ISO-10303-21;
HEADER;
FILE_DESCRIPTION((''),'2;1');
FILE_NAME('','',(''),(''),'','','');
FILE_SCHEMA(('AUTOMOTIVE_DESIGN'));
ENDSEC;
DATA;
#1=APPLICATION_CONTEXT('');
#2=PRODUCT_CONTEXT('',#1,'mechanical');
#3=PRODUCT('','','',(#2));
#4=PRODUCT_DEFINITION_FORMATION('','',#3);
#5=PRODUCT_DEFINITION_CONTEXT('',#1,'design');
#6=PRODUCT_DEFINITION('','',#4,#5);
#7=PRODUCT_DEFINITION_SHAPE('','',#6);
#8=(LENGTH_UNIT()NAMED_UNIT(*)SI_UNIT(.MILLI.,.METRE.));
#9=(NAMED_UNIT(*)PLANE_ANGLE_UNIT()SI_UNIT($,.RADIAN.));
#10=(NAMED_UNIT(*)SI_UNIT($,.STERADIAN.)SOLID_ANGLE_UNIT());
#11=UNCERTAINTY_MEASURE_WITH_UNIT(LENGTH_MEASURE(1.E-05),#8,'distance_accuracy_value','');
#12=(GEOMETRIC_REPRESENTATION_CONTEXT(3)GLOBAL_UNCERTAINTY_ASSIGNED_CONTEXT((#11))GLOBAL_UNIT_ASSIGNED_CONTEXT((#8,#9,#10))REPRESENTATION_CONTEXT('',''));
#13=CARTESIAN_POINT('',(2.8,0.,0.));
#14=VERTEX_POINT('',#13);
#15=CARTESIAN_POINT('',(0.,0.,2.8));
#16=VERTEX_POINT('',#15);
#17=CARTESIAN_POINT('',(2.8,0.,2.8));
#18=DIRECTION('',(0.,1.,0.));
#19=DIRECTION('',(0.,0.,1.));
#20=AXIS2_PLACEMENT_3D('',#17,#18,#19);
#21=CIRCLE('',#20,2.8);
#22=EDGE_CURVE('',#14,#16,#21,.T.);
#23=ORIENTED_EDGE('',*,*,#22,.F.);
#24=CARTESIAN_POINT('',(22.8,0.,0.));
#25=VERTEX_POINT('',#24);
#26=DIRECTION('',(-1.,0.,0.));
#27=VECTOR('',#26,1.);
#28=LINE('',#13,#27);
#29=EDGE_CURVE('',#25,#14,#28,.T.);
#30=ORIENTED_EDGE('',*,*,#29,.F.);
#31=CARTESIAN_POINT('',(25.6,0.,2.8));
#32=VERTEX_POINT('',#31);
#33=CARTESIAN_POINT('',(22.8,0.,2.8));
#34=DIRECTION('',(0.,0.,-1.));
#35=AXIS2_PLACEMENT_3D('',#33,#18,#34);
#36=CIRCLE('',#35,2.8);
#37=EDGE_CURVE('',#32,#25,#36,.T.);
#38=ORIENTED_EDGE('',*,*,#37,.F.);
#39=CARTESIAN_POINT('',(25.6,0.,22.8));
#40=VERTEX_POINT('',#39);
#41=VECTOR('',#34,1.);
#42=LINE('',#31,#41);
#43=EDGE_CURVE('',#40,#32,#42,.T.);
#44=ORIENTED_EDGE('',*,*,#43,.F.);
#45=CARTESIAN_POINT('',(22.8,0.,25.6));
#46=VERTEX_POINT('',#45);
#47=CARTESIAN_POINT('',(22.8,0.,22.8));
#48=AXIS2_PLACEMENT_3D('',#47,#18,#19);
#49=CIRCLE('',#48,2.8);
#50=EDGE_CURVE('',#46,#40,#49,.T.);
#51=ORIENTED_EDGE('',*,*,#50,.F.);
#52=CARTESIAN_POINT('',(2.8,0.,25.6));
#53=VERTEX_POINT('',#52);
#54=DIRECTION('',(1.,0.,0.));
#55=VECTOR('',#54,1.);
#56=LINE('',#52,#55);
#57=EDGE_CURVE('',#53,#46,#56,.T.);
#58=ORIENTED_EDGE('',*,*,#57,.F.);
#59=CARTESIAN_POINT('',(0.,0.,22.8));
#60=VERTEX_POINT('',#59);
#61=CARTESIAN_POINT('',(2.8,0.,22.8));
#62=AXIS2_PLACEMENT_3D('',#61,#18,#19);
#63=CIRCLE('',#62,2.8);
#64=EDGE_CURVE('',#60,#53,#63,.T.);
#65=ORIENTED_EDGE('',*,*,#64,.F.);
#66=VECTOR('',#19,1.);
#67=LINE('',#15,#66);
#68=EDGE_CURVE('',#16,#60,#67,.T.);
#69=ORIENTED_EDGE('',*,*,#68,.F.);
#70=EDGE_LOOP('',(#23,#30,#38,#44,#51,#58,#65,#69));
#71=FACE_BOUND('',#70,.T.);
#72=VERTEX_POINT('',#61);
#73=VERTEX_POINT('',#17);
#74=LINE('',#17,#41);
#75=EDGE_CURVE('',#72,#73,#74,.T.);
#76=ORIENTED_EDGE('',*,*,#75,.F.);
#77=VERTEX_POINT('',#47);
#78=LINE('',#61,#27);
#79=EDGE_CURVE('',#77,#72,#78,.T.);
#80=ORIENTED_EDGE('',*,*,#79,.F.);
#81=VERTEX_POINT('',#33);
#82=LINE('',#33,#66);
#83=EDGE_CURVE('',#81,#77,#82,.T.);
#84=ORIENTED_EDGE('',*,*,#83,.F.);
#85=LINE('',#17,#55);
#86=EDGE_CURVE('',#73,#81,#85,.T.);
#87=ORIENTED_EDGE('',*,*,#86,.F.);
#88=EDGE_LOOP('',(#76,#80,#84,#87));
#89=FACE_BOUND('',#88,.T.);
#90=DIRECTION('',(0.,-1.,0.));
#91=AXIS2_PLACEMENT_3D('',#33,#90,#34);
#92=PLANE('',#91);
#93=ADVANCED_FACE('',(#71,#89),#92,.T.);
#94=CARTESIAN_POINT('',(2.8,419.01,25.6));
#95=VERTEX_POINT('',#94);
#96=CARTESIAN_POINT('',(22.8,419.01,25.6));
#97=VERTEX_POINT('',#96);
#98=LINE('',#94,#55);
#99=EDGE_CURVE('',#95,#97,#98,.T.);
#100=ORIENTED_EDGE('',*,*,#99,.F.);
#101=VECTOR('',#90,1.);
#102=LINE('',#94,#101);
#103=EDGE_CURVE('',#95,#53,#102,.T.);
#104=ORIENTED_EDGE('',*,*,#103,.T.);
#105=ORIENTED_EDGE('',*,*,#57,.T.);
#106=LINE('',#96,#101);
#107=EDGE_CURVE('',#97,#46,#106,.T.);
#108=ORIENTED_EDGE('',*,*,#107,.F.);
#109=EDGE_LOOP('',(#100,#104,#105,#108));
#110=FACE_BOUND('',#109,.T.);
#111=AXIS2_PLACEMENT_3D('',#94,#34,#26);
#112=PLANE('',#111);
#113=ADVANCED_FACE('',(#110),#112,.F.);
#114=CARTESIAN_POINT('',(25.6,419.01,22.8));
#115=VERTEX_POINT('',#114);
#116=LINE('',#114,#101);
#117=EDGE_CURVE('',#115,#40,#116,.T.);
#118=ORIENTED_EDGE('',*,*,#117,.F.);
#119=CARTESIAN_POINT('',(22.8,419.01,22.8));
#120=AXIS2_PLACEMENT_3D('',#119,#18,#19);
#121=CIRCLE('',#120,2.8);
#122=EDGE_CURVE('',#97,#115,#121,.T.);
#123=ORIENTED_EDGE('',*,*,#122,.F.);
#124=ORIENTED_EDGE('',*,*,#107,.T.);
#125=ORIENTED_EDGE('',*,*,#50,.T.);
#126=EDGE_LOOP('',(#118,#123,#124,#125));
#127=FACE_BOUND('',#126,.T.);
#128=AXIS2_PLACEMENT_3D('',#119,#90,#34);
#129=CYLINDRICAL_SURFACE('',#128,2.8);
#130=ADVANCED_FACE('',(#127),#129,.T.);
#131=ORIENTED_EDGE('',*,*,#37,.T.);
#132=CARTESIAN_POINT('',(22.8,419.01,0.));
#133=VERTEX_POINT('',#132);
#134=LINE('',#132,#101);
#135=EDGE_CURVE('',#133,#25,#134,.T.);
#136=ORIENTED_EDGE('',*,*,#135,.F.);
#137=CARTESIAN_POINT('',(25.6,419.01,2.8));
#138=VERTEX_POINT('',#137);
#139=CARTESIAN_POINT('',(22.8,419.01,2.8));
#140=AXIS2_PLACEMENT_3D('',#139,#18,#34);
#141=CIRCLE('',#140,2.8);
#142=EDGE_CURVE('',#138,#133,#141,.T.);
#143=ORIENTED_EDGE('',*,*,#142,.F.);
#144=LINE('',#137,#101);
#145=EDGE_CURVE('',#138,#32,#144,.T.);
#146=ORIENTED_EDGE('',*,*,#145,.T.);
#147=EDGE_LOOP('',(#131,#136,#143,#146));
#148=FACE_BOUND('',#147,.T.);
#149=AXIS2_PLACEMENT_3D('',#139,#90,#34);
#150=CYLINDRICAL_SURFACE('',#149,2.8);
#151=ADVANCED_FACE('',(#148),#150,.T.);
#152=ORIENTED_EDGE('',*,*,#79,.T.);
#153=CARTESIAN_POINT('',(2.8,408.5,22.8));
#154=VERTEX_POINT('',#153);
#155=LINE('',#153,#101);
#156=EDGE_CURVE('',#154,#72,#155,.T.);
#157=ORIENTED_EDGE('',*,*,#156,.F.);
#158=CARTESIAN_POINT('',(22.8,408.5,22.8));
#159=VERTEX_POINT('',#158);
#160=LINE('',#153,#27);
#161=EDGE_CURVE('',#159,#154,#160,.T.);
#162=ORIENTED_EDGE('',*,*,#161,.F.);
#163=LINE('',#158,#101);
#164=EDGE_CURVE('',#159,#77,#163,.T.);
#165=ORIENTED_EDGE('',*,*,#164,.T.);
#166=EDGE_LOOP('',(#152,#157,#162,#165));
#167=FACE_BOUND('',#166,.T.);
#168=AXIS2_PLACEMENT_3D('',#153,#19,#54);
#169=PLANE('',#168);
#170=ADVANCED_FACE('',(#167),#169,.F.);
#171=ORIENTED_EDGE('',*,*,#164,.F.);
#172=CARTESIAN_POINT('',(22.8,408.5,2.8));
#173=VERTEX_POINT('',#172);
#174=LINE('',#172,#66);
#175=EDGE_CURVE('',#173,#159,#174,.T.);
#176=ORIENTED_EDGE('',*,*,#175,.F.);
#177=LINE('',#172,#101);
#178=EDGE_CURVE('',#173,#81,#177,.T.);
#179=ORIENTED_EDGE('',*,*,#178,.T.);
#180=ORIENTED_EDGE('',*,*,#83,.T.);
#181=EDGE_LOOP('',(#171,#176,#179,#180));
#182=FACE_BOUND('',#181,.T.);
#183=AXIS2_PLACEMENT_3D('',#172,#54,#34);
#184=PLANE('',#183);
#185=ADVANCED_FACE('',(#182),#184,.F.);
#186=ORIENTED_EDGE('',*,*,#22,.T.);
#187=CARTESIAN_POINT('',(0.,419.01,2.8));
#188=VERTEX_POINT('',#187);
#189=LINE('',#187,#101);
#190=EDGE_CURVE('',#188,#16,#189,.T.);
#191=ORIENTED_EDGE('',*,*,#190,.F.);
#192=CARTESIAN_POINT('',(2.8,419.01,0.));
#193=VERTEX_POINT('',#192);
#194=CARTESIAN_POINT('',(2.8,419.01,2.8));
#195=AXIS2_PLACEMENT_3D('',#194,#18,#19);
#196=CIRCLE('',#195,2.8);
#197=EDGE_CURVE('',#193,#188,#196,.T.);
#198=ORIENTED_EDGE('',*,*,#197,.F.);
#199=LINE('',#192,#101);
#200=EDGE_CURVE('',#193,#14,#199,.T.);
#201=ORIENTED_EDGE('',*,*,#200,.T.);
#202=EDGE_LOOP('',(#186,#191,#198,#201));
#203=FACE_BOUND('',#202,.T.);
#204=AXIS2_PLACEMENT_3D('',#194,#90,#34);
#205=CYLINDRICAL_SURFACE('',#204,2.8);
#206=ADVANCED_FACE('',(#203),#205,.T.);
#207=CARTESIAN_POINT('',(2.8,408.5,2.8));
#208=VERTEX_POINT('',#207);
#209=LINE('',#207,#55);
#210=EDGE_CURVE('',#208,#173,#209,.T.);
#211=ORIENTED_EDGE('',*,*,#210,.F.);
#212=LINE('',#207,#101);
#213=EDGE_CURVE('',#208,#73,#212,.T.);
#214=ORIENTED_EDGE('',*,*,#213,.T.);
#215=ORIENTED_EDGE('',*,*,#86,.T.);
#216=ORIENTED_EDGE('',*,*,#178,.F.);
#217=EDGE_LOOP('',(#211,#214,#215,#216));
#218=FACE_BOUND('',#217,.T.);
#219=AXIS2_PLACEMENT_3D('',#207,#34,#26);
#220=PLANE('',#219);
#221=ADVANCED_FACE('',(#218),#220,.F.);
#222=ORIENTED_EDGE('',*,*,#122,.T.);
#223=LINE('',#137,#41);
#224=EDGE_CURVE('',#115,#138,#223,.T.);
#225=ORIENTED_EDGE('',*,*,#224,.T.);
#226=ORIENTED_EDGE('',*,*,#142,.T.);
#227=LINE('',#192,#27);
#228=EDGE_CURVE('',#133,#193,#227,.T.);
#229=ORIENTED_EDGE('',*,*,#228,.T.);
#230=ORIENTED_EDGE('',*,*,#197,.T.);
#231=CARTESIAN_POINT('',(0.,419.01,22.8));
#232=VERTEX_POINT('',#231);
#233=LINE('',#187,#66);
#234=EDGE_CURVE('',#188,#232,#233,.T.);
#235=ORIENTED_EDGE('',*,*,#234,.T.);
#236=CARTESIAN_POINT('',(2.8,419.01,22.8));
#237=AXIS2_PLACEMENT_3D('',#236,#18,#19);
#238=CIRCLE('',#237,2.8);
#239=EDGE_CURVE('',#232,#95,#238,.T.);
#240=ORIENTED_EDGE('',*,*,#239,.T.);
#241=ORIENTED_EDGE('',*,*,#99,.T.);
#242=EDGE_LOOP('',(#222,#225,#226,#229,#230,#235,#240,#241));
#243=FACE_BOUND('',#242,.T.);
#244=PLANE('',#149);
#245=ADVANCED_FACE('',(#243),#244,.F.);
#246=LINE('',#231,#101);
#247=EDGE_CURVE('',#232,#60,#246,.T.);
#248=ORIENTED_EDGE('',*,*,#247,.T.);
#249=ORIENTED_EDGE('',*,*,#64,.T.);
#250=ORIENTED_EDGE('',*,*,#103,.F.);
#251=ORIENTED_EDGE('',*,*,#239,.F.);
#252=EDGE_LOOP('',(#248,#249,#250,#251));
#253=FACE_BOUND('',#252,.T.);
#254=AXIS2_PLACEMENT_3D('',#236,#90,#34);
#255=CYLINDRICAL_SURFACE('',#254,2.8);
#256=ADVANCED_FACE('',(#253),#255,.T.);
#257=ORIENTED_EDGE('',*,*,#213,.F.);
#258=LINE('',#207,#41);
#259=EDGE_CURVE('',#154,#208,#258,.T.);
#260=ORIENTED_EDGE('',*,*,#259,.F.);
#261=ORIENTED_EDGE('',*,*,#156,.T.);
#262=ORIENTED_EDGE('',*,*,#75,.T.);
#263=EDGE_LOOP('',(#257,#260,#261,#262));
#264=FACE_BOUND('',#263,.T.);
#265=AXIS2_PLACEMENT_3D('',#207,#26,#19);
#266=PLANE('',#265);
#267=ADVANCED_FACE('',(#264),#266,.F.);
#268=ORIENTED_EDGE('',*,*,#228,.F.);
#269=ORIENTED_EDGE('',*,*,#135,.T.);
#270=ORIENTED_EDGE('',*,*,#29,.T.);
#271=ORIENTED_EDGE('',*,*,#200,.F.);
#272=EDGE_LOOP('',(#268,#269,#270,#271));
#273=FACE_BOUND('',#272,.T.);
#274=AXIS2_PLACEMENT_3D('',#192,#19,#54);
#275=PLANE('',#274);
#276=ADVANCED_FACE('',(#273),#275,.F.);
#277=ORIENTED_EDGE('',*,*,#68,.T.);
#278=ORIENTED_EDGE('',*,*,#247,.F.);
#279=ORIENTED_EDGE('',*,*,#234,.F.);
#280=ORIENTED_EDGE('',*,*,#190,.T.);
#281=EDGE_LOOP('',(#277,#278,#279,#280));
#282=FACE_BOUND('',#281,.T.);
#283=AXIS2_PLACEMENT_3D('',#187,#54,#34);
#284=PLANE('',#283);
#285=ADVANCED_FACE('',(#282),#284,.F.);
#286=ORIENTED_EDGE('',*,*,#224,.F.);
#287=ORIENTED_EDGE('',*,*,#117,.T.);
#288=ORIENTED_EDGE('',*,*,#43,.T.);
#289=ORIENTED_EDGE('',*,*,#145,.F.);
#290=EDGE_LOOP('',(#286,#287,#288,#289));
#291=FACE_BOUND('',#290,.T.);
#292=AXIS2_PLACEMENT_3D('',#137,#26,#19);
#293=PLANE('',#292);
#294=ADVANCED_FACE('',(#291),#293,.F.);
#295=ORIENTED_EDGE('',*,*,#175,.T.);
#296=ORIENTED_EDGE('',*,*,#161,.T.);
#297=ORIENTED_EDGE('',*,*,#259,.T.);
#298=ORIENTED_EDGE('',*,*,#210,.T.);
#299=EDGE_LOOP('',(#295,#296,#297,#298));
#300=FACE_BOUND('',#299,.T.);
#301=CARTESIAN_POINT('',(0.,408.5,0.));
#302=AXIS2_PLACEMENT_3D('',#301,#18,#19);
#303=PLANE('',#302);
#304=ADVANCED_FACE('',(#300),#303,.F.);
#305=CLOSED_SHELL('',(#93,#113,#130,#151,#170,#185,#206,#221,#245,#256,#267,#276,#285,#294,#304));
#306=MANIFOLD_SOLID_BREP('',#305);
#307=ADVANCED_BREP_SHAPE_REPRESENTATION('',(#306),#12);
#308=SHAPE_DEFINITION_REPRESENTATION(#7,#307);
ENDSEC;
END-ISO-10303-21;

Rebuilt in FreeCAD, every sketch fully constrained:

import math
import FreeCAD as App
import Part
import Sketcher

V = App.Vector
Q = App.Units.Quantity


def add_polygon(sketch, points):
    """Adds a closed chain of lines whose ends are joined by coincident constraints."""
    first, n = sketch.GeometryCount, len(points)
    for a, b in zip(points, points[1:] + points[:1]):
        sketch.addGeometry(Part.LineSegment(App.Vector(*a, 0), App.Vector(*b, 0)), False)
    for i in range(n):
        sketch.addConstraint(Sketcher.Constraint("Coincident", first + i, 2, first + (i + 1) % n, 1))

doc = App.newDocument("Part")
params = doc.addObject("Spreadsheet::Sheet", "Params")
for row, (alias, value) in enumerate([
    ("sketch1_radius", "2.8 mm"),
    ("sketch1_width", "20 mm"),
    ("pad1_length", "419.01 mm"),
    ("sketch2_width", "20 mm"),
    ("pocket1_length", "408.5 mm"),
], start=1):
    params.set(f"A{row}", alias)
    params.set(f"B{row}", "=" + value)
    params.setAlias(f"B{row}", alias)

body = doc.addObject("PartDesign::Body", "Body")

# Sketch on XZ plane
sketch1 = body.newObject("Sketcher::SketchObject", "Sketch")
sketch1.AttachmentSupport = (doc.getObject("XZ_Plane"), [""])
sketch1.MapMode = "FlatFace"
sketch1.addGeometry(Part.LineSegment(V(22.8, 0, 0), V(2.8, 0, 0)), False)
sketch1.addGeometry(Part.ArcOfCircle(Part.Circle(V(2.8, 2.8, 0), V(0, 0, 1), 2.8), math.radians(-180), math.radians(-90)), False)
sketch1.addGeometry(Part.LineSegment(V(0, 2.8, 0), V(0, 22.8, 0)), False)
sketch1.addGeometry(Part.ArcOfCircle(Part.Circle(V(2.8, 22.8, 0), V(0, 0, 1), 2.8), math.radians(90), math.radians(180)), False)
sketch1.addGeometry(Part.LineSegment(V(2.8, 25.6, 0), V(22.8, 25.6, 0)), False)
sketch1.addGeometry(Part.ArcOfCircle(Part.Circle(V(22.8, 22.8, 0), V(0, 0, 1), 2.8), math.radians(0), math.radians(90)), False)
sketch1.addGeometry(Part.LineSegment(V(25.6, 22.8, 0), V(25.6, 2.8, 0)), False)
sketch1.addGeometry(Part.ArcOfCircle(Part.Circle(V(22.8, 2.8, 0), V(0, 0, 1), 2.8), math.radians(-90), math.radians(0)), False)
sketch1.addConstraint(Sketcher.Constraint("Tangent", 0, 2, 1, 2))
sketch1.addConstraint(Sketcher.Constraint("Tangent", 1, 1, 2, 1))
sketch1.addConstraint(Sketcher.Constraint("Tangent", 2, 2, 3, 2))
sketch1.addConstraint(Sketcher.Constraint("Tangent", 3, 1, 4, 1))
sketch1.addConstraint(Sketcher.Constraint("Tangent", 4, 2, 5, 2))
sketch1.addConstraint(Sketcher.Constraint("Tangent", 5, 1, 6, 1))
sketch1.addConstraint(Sketcher.Constraint("Tangent", 6, 2, 7, 2))
sketch1.addConstraint(Sketcher.Constraint("Tangent", 7, 1, 0, 1))
sketch1.addConstraint(Sketcher.Constraint("Horizontal", 0))
sketch1.addConstraint(Sketcher.Constraint("Vertical", 2))
sketch1.addConstraint(Sketcher.Constraint("Horizontal", 4))
sketch1.addConstraint(Sketcher.Constraint("Vertical", 6))
sketch1.addConstraint(Sketcher.Constraint("Equal", 1, 3))
sketch1.addConstraint(Sketcher.Constraint("Equal", 3, 5))
sketch1.addConstraint(Sketcher.Constraint("Equal", 5, 7))
sketch1.addConstraint(Sketcher.Constraint("PointOnObject", 0, 2, -1))
sketch1.addConstraint(Sketcher.Constraint("PointOnObject", 1, 1, -2))
sketch1.addConstraint(Sketcher.Constraint("Equal", 4, 2))
sketch1.addConstraint(Sketcher.Constraint("Radius", 1, Q("2.8 mm")))
sketch1.addConstraint(Sketcher.Constraint("DistanceX", 0, 2, 0, 1, Q("20 mm")))
sketch1.setExpression("Constraints[18]", "Params.sketch1_radius")
sketch1.setExpression("Constraints[19]", "Params.sketch1_width")
pad1 = body.newObject("PartDesign::Pad", "Pad")
pad1.Profile = sketch1
pad1.setExpression("Length", "Params.pad1_length")
pad1.Reversed = True

# Sketch on XZ plane
sketch2 = body.newObject("Sketcher::SketchObject", "Sketch001")
sketch2.AttachmentSupport = (doc.getObject("XZ_Plane"), [""])
sketch2.MapMode = "FlatFace"
add_polygon(sketch2, [(23, 3), (23, 23), (3, 23), (3, 3)])  # lines 0-3
sketch2.addConstraint(Sketcher.Constraint("Vertical", 0))
sketch2.addConstraint(Sketcher.Constraint("Horizontal", 1))
sketch2.addConstraint(Sketcher.Constraint("Vertical", 2))
sketch2.addConstraint(Sketcher.Constraint("Horizontal", 3))
sketch2.addConstraint(Sketcher.Constraint("Equal", 3, 0))
sketch2.addConstraint(Sketcher.Constraint("DistanceX", 1, 2, 1, 1, Q("20 mm")))
sketch2.addConstraint(Sketcher.Constraint("DistanceX", -1, 1, 0, 2, Q("22.8 mm")))
sketch2.addConstraint(Sketcher.Constraint("DistanceY", -1, 1, 0, 2, Q("22.8 mm")))
sketch2.setExpression("Constraints[9]", "Params.sketch2_width")
pocket1 = body.newObject("PartDesign::Pocket", "Pocket")
pocket1.Profile = sketch2
pocket1.setExpression("Length", "Params.pocket1_length")

doc.recompute()
